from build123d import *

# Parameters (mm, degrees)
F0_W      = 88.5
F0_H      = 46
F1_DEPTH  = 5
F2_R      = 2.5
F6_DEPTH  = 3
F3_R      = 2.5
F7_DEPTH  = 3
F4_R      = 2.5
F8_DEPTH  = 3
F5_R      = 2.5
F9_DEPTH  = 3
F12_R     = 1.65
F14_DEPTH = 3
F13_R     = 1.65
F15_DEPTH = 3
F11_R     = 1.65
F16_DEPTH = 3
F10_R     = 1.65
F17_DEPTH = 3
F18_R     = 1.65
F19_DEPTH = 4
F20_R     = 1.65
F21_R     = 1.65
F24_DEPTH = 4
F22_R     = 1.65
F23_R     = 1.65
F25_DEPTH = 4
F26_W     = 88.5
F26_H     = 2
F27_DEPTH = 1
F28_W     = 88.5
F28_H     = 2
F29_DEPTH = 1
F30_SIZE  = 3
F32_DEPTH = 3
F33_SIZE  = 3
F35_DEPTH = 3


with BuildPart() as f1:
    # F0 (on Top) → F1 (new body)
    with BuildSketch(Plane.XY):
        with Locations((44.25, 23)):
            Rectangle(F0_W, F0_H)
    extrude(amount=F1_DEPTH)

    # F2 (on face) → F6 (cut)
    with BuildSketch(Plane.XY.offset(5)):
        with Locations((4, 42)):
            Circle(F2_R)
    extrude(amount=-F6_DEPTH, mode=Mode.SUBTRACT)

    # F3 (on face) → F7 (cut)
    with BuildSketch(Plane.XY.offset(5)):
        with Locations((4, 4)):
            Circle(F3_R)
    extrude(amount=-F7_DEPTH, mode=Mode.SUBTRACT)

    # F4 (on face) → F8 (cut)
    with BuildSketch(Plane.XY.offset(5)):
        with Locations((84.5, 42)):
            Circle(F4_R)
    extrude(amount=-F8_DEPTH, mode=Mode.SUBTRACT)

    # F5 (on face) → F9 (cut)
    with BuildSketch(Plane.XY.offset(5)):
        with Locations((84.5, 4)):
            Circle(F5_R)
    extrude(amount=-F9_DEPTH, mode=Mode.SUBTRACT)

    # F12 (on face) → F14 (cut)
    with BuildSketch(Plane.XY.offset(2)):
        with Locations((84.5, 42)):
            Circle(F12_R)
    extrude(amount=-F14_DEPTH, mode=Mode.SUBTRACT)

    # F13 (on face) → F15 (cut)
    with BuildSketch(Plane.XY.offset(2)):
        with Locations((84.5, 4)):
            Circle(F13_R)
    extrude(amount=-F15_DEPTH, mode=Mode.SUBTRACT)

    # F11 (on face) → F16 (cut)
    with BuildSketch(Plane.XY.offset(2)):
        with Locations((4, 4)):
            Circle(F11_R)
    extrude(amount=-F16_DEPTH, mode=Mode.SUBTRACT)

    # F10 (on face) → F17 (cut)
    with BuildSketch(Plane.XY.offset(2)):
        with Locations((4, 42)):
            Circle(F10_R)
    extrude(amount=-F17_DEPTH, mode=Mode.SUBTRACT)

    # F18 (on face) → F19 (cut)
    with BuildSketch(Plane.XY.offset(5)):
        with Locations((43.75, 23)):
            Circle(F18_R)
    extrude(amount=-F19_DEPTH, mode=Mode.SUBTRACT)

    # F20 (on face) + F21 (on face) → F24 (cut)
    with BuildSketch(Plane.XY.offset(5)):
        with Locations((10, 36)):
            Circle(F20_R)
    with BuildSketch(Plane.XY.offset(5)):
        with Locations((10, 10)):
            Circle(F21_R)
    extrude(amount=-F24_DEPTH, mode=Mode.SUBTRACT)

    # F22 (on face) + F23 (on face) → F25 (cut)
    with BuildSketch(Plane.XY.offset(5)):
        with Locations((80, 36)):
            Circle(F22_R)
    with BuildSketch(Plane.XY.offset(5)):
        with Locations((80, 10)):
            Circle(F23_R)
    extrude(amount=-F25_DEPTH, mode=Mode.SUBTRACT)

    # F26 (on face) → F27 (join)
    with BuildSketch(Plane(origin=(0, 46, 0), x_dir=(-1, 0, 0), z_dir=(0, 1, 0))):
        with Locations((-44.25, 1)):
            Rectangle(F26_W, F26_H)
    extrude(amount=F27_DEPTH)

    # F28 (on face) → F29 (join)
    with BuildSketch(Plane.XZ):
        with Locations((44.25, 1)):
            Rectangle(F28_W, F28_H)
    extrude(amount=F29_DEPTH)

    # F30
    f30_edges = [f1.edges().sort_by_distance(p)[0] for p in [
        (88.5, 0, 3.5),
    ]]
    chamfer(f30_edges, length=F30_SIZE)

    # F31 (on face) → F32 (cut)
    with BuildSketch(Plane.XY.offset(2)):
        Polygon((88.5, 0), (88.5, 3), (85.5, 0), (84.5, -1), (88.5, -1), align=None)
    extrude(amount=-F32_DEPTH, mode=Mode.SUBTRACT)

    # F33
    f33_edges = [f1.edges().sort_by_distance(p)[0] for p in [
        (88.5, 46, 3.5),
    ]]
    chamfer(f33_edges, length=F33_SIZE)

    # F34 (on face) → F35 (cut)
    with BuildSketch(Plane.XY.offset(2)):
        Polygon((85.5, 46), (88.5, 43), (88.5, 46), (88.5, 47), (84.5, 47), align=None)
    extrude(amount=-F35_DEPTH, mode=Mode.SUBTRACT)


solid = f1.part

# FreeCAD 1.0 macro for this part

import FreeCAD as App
import Part
import Sketcher
from FreeCAD import Vector
Q = App.Units.Quantity


def edges_at(feature, points):
    """Names of the edges that pass closest to the given points."""
    edges = feature.Shape.Edges
    near = lambda p: min(range(len(edges)), key=lambda i: edges[i].distToShape(Part.Vertex(*p))[0])
    return sorted({f"Edge{near(p) + 1}" for p in points})

doc = App.newDocument("Part")
body = doc.addObject("PartDesign::Body", "Body")

# Sketch on XY plane
sketch1 = body.newObject("Sketcher::SketchObject", "Sketch")
sketch1.AttachmentSupport = (doc.getObject("XY_Plane"), [""])
sketch1.MapMode = "FlatFace"
sketch1.addGeometry(Part.LineSegment(Vector(0, 46, 0), Vector(0, 0, 0)), False)
sketch1.addGeometry(Part.LineSegment(Vector(0, 0, 0), Vector(88, 0, 0)), False)
sketch1.addGeometry(Part.LineSegment(Vector(88, 0, 0), Vector(88, 46, 0)), False)
sketch1.addGeometry(Part.LineSegment(Vector(88, 46, 0), Vector(0, 46, 0)), False)
sketch1.addConstraint(Sketcher.Constraint("Coincident", 0, 2, 1, 1))
sketch1.addConstraint(Sketcher.Constraint("Coincident", 1, 2, 2, 1))
sketch1.addConstraint(Sketcher.Constraint("Coincident", 2, 2, 3, 1))
sketch1.addConstraint(Sketcher.Constraint("Coincident", 3, 2, 0, 1))
sketch1.addConstraint(Sketcher.Constraint("Vertical", 0))
sketch1.addConstraint(Sketcher.Constraint("Horizontal", 1))
sketch1.addConstraint(Sketcher.Constraint("Vertical", 2))
sketch1.addConstraint(Sketcher.Constraint("Horizontal", 3))
sketch1.addConstraint(Sketcher.Constraint("Coincident", 0, 2, -1, 1))
sketch1.addConstraint(Sketcher.Constraint("DistanceY", 0, 2, 0, 1, Q("46 mm")))
sketch1.addConstraint(Sketcher.Constraint("DistanceX", 1, 1, 1, 2, Q("88.5 mm")))
pad1 = body.newObject("PartDesign::Pad", "Pad")
pad1.Profile = sketch1
pad1.Length = 5

# Sketch on XY plane
sketch2 = body.newObject("Sketcher::SketchObject", "Sketch001")
sketch2.AttachmentSupport = (doc.getObject("XY_Plane"), [""])
sketch2.MapMode = "FlatFace"
sketch2.AttachmentOffset = App.Placement(Vector(0, 0, 5), App.Rotation())
sketch2.addGeometry(Part.Circle(Vector(4, 42, 0), Vector(0, 0, 1), 2.5), False)
sketch2.addConstraint(Sketcher.Constraint("Diameter", 0, Q("5 mm")))
sketch2.addConstraint(Sketcher.Constraint("DistanceX", -1, 1, 0, 3, Q("4 mm")))
sketch2.addConstraint(Sketcher.Constraint("DistanceY", -1, 1, 0, 3, Q("42 mm")))
pocket1 = body.newObject("PartDesign::Pocket", "Pocket")
pocket1.Profile = sketch2
pocket1.Length = 3

# Sketch on XY plane
sketch3 = body.newObject("Sketcher::SketchObject", "Sketch002")
sketch3.AttachmentSupport = (doc.getObject("XY_Plane"), [""])
sketch3.MapMode = "FlatFace"
sketch3.AttachmentOffset = App.Placement(Vector(0, 0, 5), App.Rotation())
sketch3.addGeometry(Part.Circle(Vector(4, 4, 0), Vector(0, 0, 1), 2.5), False)
sketch3.addConstraint(Sketcher.Constraint("Diameter", 0, Q("5 mm")))
sketch3.addConstraint(Sketcher.Constraint("DistanceX", -1, 1, 0, 3, Q("4 mm")))
sketch3.addConstraint(Sketcher.Constraint("DistanceY", -1, 1, 0, 3, Q("4 mm")))
pocket2 = body.newObject("PartDesign::Pocket", "Pocket001")
pocket2.Profile = sketch3
pocket2.Length = 3

# Sketch on XY plane
sketch4 = body.newObject("Sketcher::SketchObject", "Sketch003")
sketch4.AttachmentSupport = (doc.getObject("XY_Plane"), [""])
sketch4.MapMode = "FlatFace"
sketch4.AttachmentOffset = App.Placement(Vector(0, 0, 5), App.Rotation())
sketch4.addGeometry(Part.Circle(Vector(84.5, 42, 0), Vector(0, 0, 1), 2.5), False)
sketch4.addConstraint(Sketcher.Constraint("Diameter", 0, Q("5 mm")))
sketch4.addConstraint(Sketcher.Constraint("DistanceY", -1, 1, 0, 3, Q("42 mm")))
sketch4.addConstraint(Sketcher.Constraint("DistanceX", -1, 1, 0, 3, Q("84.5 mm")))
pocket3 = body.newObject("PartDesign::Pocket", "Pocket002")
pocket3.Profile = sketch4
pocket3.Length = 3

# Sketch on XY plane
sketch5 = body.newObject("Sketcher::SketchObject", "Sketch004")
sketch5.AttachmentSupport = (doc.getObject("XY_Plane"), [""])
sketch5.MapMode = "FlatFace"
sketch5.AttachmentOffset = App.Placement(Vector(0, 0, 5), App.Rotation())
sketch5.addGeometry(Part.Circle(Vector(84.5, 4, 0), Vector(0, 0, 1), 2.5), False)
sketch5.addConstraint(Sketcher.Constraint("Diameter", 0, Q("5 mm")))
sketch5.addConstraint(Sketcher.Constraint("DistanceY", -1, 1, 0, 3, Q("4 mm")))
sketch5.addConstraint(Sketcher.Constraint("DistanceX", -1, 1, 0, 3, Q("84.5 mm")))
pocket4 = body.newObject("PartDesign::Pocket", "Pocket003")
pocket4.Profile = sketch5
pocket4.Length = 3

# Sketch on XY plane
sketch6 = body.newObject("Sketcher::SketchObject", "Sketch005")
sketch6.AttachmentSupport = (doc.getObject("XY_Plane"), [""])
sketch6.MapMode = "FlatFace"
sketch6.AttachmentOffset = App.Placement(Vector(0, 0, 2), App.Rotation())
sketch6.addGeometry(Part.Circle(Vector(84.5, 42, 0), Vector(0, 0, 1), 1.6), False)
sketch6.addConstraint(Sketcher.Constraint("Diameter", 0, Q("3.3 mm")))
sketch6.addConstraint(Sketcher.Constraint("DistanceY", -1, 1, 0, 3, Q("42 mm")))
sketch6.addConstraint(Sketcher.Constraint("DistanceX", -1, 1, 0, 3, Q("84.5 mm")))
pocket5 = body.newObject("PartDesign::Pocket", "Pocket004")
pocket5.Profile = sketch6
pocket5.Length = 3

# Sketch on XY plane
sketch7 = body.newObject("Sketcher::SketchObject", "Sketch006")
sketch7.AttachmentSupport = (doc.getObject("XY_Plane"), [""])
sketch7.MapMode = "FlatFace"
sketch7.AttachmentOffset = App.Placement(Vector(0, 0, 2), App.Rotation())
sketch7.addGeometry(Part.Circle(Vector(84.5, 4, 0), Vector(0, 0, 1), 1.6), False)
sketch7.addConstraint(Sketcher.Constraint("Diameter", 0, Q("3.3 mm")))
sketch7.addConstraint(Sketcher.Constraint("DistanceY", -1, 1, 0, 3, Q("4 mm")))
sketch7.addConstraint(Sketcher.Constraint("DistanceX", -1, 1, 0, 3, Q("84.5 mm")))
pocket6 = body.newObject("PartDesign::Pocket", "Pocket005")
pocket6.Profile = sketch7
pocket6.Length = 3

# Sketch on XY plane
sketch8 = body.newObject("Sketcher::SketchObject", "Sketch007")
sketch8.AttachmentSupport = (doc.getObject("XY_Plane"), [""])
sketch8.MapMode = "FlatFace"
sketch8.AttachmentOffset = App.Placement(Vector(0, 0, 2), App.Rotation())
sketch8.addGeometry(Part.Circle(Vector(4, 4, 0), Vector(0, 0, 1), 1.6), False)
sketch8.addConstraint(Sketcher.Constraint("Diameter", 0, Q("3.3 mm")))
sketch8.addConstraint(Sketcher.Constraint("DistanceX", -1, 1, 0, 3, Q("4 mm")))
sketch8.addConstraint(Sketcher.Constraint("DistanceY", -1, 1, 0, 3, Q("4 mm")))
pocket7 = body.newObject("PartDesign::Pocket", "Pocket006")
pocket7.Profile = sketch8
pocket7.Length = 3

# Sketch on XY plane
sketch9 = body.newObject("Sketcher::SketchObject", "Sketch008")
sketch9.AttachmentSupport = (doc.getObject("XY_Plane"), [""])
sketch9.MapMode = "FlatFace"
sketch9.AttachmentOffset = App.Placement(Vector(0, 0, 2), App.Rotation())
sketch9.addGeometry(Part.Circle(Vector(4, 42, 0), Vector(0, 0, 1), 1.6), False)
sketch9.addConstraint(Sketcher.Constraint("Diameter", 0, Q("3.3 mm")))
sketch9.addConstraint(Sketcher.Constraint("DistanceX", -1, 1, 0, 3, Q("4 mm")))
sketch9.addConstraint(Sketcher.Constraint("DistanceY", -1, 1, 0, 3, Q("42 mm")))
pocket8 = body.newObject("PartDesign::Pocket", "Pocket007")
pocket8.Profile = sketch9
pocket8.Length = 3

# Sketch on XY plane
sketch10 = body.newObject("Sketcher::SketchObject", "Sketch009")
sketch10.AttachmentSupport = (doc.getObject("XY_Plane"), [""])
sketch10.MapMode = "FlatFace"
sketch10.AttachmentOffset = App.Placement(Vector(0, 0, 5), App.Rotation())
sketch10.addGeometry(Part.Circle(Vector(43.8, 23, 0), Vector(0, 0, 1), 1.6), False)
sketch10.addConstraint(Sketcher.Constraint("Diameter", 0, Q("3.3 mm")))
sketch10.addConstraint(Sketcher.Constraint("DistanceY", -1, 1, 0, 3, Q("23 mm")))
sketch10.addConstraint(Sketcher.Constraint("DistanceX", -1, 1, 0, 3, Q("43.75 mm")))
pocket9 = body.newObject("PartDesign::Pocket", "Pocket008")
pocket9.Profile = sketch10
pocket9.Length = 4

# Sketch on XY plane
sketch11 = body.newObject("Sketcher::SketchObject", "Sketch010")
sketch11.AttachmentSupport = (doc.getObject("XY_Plane"), [""])
sketch11.MapMode = "FlatFace"
sketch11.AttachmentOffset = App.Placement(Vector(0, 0, 5), App.Rotation())
sketch11.addGeometry(Part.Circle(Vector(10, 36, 0), Vector(0, 0, 1), 1.6), False)
sketch11.addGeometry(Part.Circle(Vector(10, 10, 0), Vector(0, 0, 1), 1.6), False)
sketch11.addConstraint(Sketcher.Constraint("Equal", 0, 1))
sketch11.addConstraint(Sketcher.Constraint("Vertical", 0, 3, 1, 3))
sketch11.addConstraint(Sketcher.Constraint("Diameter", 0, Q("3.3 mm")))
sketch11.addConstraint(Sketcher.Constraint("DistanceX", -1, 1, 0, 3, Q("10 mm")))
sketch11.addConstraint(Sketcher.Constraint("DistanceY", -1, 1, 0, 3, Q("36 mm")))
sketch11.addConstraint(Sketcher.Constraint("DistanceY", -1, 1, 1, 3, Q("10 mm")))
pocket10 = body.newObject("PartDesign::Pocket", "Pocket009")
pocket10.Profile = sketch11
pocket10.Length = 4

# Sketch on XY plane
sketch12 = body.newObject("Sketcher::SketchObject", "Sketch011")
sketch12.AttachmentSupport = (doc.getObject("XY_Plane"), [""])
sketch12.MapMode = "FlatFace"
sketch12.AttachmentOffset = App.Placement(Vector(0, 0, 5), App.Rotation())
sketch12.addGeometry(Part.Circle(Vector(80, 36, 0), Vector(0, 0, 1), 1.6), False)
sketch12.addGeometry(Part.Circle(Vector(80, 10, 0), Vector(0, 0, 1), 1.6), False)
sketch12.addConstraint(Sketcher.Constraint("Equal", 0, 1))
sketch12.addConstraint(Sketcher.Constraint("Vertical", 0, 3, 1, 3))
sketch12.addConstraint(Sketcher.Constraint("Diameter", 0, Q("3.3 mm")))
sketch12.addConstraint(Sketcher.Constraint("DistanceX", -1, 1, 0, 3, Q("80 mm")))
sketch12.addConstraint(Sketcher.Constraint("DistanceY", -1, 1, 0, 3, Q("36 mm")))
sketch12.addConstraint(Sketcher.Constraint("DistanceY", -1, 1, 1, 3, Q("10 mm")))
pocket11 = body.newObject("PartDesign::Pocket", "Pocket010")
pocket11.Profile = sketch12
pocket11.Length = 4

# Sketch on XZ plane
sketch13 = body.newObject("Sketcher::SketchObject", "Sketch012")
sketch13.AttachmentSupport = (doc.getObject("XZ_Plane"), [""])
sketch13.MapMode = "FlatFace"
sketch13.AttachmentOffset = App.Placement(Vector(0, 0, -46), App.Rotation())
sketch13.addGeometry(Part.LineSegment(Vector(88.5, 2, 0), Vector(88.5, 0, 0)), False)
sketch13.addGeometry(Part.LineSegment(Vector(88.5, 0, 0), Vector(0, 0, 0)), False)
sketch13.addGeometry(Part.LineSegment(Vector(0, 0, 0), Vector(0, 2, 0)), False)
sketch13.addGeometry(Part.LineSegment(Vector(0, 2, 0), Vector(88.5, 2, 0)), False)
sketch13.addConstraint(Sketcher.Constraint("Coincident", 0, 2, 1, 1))
sketch13.addConstraint(Sketcher.Constraint("Coincident", 1, 2, 2, 1))
sketch13.addConstraint(Sketcher.Constraint("Coincident", 2, 2, 3, 1))
sketch13.addConstraint(Sketcher.Constraint("Coincident", 3, 2, 0, 1))
sketch13.addConstraint(Sketcher.Constraint("Vertical", 0))
sketch13.addConstraint(Sketcher.Constraint("Horizontal", 1))
sketch13.addConstraint(Sketcher.Constraint("Vertical", 2))
sketch13.addConstraint(Sketcher.Constraint("Horizontal", 3))
sketch13.addConstraint(Sketcher.Constraint("Coincident", 1, 2, -1, 1))
sketch13.addConstraint(Sketcher.Constraint("DistanceY", 0, 2, 0, 1, Q("2 mm")))
sketch13.addConstraint(Sketcher.Constraint("DistanceX", 1, 2, 1, 1, Q("88.5 mm")))
pad2 = body.newObject("PartDesign::Pad", "Pad001")
pad2.Profile = sketch13
pad2.Length = 1
pad2.Reversed = True

# Sketch on XZ plane
sketch14 = body.newObject("Sketcher::SketchObject", "Sketch013")
sketch14.AttachmentSupport = (doc.getObject("XZ_Plane"), [""])
sketch14.MapMode = "FlatFace"
sketch14.addGeometry(Part.LineSegment(Vector(0, 2, 0), Vector(0, 0, 0)), False)
sketch14.addGeometry(Part.LineSegment(Vector(0, 0, 0), Vector(88.5, 0, 0)), False)
sketch14.addGeometry(Part.LineSegment(Vector(88.5, 0, 0), Vector(88.5, 2, 0)), False)
sketch14.addGeometry(Part.LineSegment(Vector(88.5, 2, 0), Vector(0, 2, 0)), False)
sketch14.addConstraint(Sketcher.Constraint("Coincident", 0, 2, 1, 1))
sketch14.addConstraint(Sketcher.Constraint("Coincident", 1, 2, 2, 1))
sketch14.addConstraint(Sketcher.Constraint("Coincident", 2, 2, 3, 1))
sketch14.addConstraint(Sketcher.Constraint("Coincident", 3, 2, 0, 1))
sketch14.addConstraint(Sketcher.Constraint("Vertical", 0))
sketch14.addConstraint(Sketcher.Constraint("Horizontal", 1))
sketch14.addConstraint(Sketcher.Constraint("Vertical", 2))
sketch14.addConstraint(Sketcher.Constraint("Horizontal", 3))
sketch14.addConstraint(Sketcher.Constraint("Coincident", 0, 2, -1, 1))
sketch14.addConstraint(Sketcher.Constraint("DistanceY", 0, 2, 0, 1, Q("2 mm")))
sketch14.addConstraint(Sketcher.Constraint("DistanceX", 1, 1, 1, 2, Q("88.5 mm")))
pad3 = body.newObject("PartDesign::Pad", "Pad002")
pad3.Profile = sketch14
pad3.Length = 1
doc.recompute()

chamfer = body.newObject("PartDesign::Chamfer", "Chamfer")
chamfer.Base = (pad3, edges_at(pad3, [(88.5, 0, 3.5)]))
chamfer.Size = 3

# Sketch on XY plane
sketch15 = body.newObject("Sketcher::SketchObject", "Sketch014")
sketch15.AttachmentSupport = (doc.getObject("XY_Plane"), [""])
sketch15.MapMode = "FlatFace"
sketch15.AttachmentOffset = App.Placement(Vector(0, 0, 2), App.Rotation())
sketch15.addGeometry(Part.LineSegment(Vector(88.5, 3, 0), Vector(84.5, -1, 0)), False)
sketch15.addGeometry(Part.LineSegment(Vector(84.5, -1, 0), Vector(88.5, -1, 0)), False)
sketch15.addGeometry(Part.LineSegment(Vector(88.5, -1, 0), Vector(88.5, 3, 0)), False)
sketch15.addConstraint(Sketcher.Constraint("Coincident", 0, 2, 1, 1))
sketch15.addConstraint(Sketcher.Constraint("Coincident", 1, 2, 2, 1))
sketch15.addConstraint(Sketcher.Constraint("Coincident", 2, 2, 0, 1))
sketch15.addConstraint(Sketcher.Constraint("Horizontal", 1))
sketch15.addConstraint(Sketcher.Constraint("Vertical", 2))
sketch15.addConstraint(Sketcher.Constraint("Equal", 1, 2))
sketch15.addConstraint(Sketcher.Constraint("DistanceX", 1, 1, 1, 2, Q("4 mm")))
sketch15.addConstraint(Sketcher.Constraint("DistanceY", 0, 2, -1, 1, Q("1 mm")))
sketch15.addConstraint(Sketcher.Constraint("DistanceX", -1, 1, 0, 2, Q("84.5 mm")))
pocket12 = body.newObject("PartDesign::Pocket", "Pocket011")
pocket12.Profile = sketch15
pocket12.Length = 3
doc.recompute()

chamfer2 = body.newObject("PartDesign::Chamfer", "Chamfer001")
chamfer2.Base = (pocket12, edges_at(pocket12, [(88.5, 46, 3.5)]))
chamfer2.Size = 3

# Sketch on XY plane
sketch16 = body.newObject("Sketcher::SketchObject", "Sketch015")
sketch16.AttachmentSupport = (doc.getObject("XY_Plane"), [""])
sketch16.MapMode = "FlatFace"
sketch16.AttachmentOffset = App.Placement(Vector(0, 0, 2), App.Rotation())
sketch16.addGeometry(Part.LineSegment(Vector(88.5, 43, 0), Vector(88.5, 47, 0)), False)
sketch16.addGeometry(Part.LineSegment(Vector(88.5, 47, 0), Vector(84.5, 47, 0)), False)
sketch16.addGeometry(Part.LineSegment(Vector(84.5, 47, 0), Vector(88.5, 43, 0)), False)
sketch16.addConstraint(Sketcher.Constraint("Coincident", 0, 2, 1, 1))
sketch16.addConstraint(Sketcher.Constraint("Coincident", 1, 2, 2, 1))
sketch16.addConstraint(Sketcher.Constraint("Coincident", 2, 2, 0, 1))
sketch16.addConstraint(Sketcher.Constraint("Vertical", 0))
sketch16.addConstraint(Sketcher.Constraint("Horizontal", 1))
sketch16.addConstraint(Sketcher.Constraint("Equal", 1, 0))
sketch16.addConstraint(Sketcher.Constraint("DistanceX", 1, 2, 1, 1, Q("4 mm")))
sketch16.addConstraint(Sketcher.Constraint("DistanceY", -1, 1, 0, 2, Q("47 mm")))
sketch16.addConstraint(Sketcher.Constraint("DistanceX", -1, 1, 0, 2, Q("88.5 mm")))
pocket13 = body.newObject("PartDesign::Pocket", "Pocket012")
pocket13.Profile = sketch16
pocket13.Length = 3

doc.recompute()
